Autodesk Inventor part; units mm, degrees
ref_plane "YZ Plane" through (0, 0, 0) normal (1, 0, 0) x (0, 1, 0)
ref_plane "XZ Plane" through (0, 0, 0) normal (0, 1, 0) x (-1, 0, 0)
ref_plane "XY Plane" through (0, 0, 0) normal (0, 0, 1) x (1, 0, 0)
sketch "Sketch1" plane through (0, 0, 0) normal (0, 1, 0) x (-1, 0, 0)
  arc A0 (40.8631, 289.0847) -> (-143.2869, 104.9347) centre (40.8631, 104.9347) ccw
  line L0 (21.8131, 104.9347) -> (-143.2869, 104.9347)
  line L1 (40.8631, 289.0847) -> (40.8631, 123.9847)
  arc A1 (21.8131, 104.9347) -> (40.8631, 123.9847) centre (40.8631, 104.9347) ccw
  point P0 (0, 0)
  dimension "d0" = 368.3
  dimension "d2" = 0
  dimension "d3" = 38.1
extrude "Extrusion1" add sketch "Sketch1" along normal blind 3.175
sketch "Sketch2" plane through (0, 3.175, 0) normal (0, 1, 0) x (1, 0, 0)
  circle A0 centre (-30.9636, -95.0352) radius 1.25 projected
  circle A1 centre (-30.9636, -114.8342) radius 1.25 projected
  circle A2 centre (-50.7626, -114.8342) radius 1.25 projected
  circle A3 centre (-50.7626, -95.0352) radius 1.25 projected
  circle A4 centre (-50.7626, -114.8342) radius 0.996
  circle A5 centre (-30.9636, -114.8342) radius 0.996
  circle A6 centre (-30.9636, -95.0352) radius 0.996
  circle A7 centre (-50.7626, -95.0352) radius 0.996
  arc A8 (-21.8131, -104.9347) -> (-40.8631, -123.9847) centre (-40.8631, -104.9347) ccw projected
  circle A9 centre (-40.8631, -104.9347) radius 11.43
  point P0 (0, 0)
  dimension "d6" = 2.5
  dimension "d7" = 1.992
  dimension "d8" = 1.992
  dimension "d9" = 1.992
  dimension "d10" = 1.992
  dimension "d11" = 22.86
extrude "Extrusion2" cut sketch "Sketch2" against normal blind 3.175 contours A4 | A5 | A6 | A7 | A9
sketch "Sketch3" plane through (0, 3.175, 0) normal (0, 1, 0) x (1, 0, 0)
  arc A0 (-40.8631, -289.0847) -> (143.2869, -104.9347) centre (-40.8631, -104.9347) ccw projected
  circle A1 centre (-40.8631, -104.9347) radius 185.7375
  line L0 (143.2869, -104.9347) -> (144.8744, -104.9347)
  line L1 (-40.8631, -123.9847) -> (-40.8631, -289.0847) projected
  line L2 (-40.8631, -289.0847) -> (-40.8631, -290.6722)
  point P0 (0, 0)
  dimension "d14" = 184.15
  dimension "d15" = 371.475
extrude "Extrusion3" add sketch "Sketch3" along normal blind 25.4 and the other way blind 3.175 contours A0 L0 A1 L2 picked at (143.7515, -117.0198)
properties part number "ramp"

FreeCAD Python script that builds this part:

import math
import FreeCAD as App
import Part
import Sketcher
Q = App.Units.Quantity

doc = App.newDocument("Part")
body = doc.addObject("PartDesign::Body", "Body")

sketch1 = body.newObject("Sketcher::SketchObject", "Sketch")
sketch1.AttachmentSupport = (doc.getObject("XZ_Plane"), [""])
sketch1.MapMode = "FlatFace"
sketch1.addGeometry([
    Part.LineSegment(App.Vector(-40.8631, 123.9847, 0), App.Vector(-40.8631, 289.0847, 0)),
    Part.ArcOfCircle(Part.Circle(App.Vector(-40.8631, 104.9347, 0), App.Vector(0, 0, 1), 184.15), math.radians(0), math.radians(90)),
    Part.LineSegment(App.Vector(143.2869, 104.9347, 0), App.Vector(-21.8131, 104.9347, 0)),
    Part.ArcOfCircle(Part.Circle(App.Vector(-40.8631, 104.9347, 0), App.Vector(0, 0, 1), 19.05), math.radians(90), math.radians(360)),
], False)
sketch1.addConstraint([
    Sketcher.Constraint("Coincident", 0, 2, 1, 2),
    Sketcher.Constraint("Coincident", 1, 1, 2, 1),
    Sketcher.Constraint("Coincident", 2, 2, 3, 2),
    Sketcher.Constraint("Coincident", 3, 1, 0, 1),
    Sketcher.Constraint("Vertical", 0),
    Sketcher.Constraint("Horizontal", 2),
    Sketcher.Constraint("Coincident", 3, 3, 1, 3),
    Sketcher.Constraint("Horizontal", 3, 3, 1, 1),
    Sketcher.Constraint("Vertical", 3, 3, 0, 2),
    Sketcher.Constraint("Radius", 1, Q("7.25 in")),
    Sketcher.Constraint("Radius", 3, Q("0.75 in")),
    Sketcher.Constraint("DistanceX", 1, 3, -1, 1, Q("40.863 mm")),
    Sketcher.Constraint("DistanceY", -1, 1, 1, 3, Q("104.9347 mm")),
])
pad1 = body.newObject("PartDesign::Pad", "Pad")
pad1.Profile = sketch1
pad1.Length = Q("0.125 in")
pad1.Reversed = True

sketch2 = body.newObject("Sketcher::SketchObject", "Sketch001")
sketch2.AttachmentSupport = (doc.getObject("XZ_Plane"), [""])
sketch2.MapMode = "FlatFace"
sketch2.AttachmentOffset = App.Placement(App.Vector(0, 0, -0.125 * 25.4), App.Rotation())
sketch2.addGeometry([
    Part.Circle(App.Vector(-50.7626, 114.8342, 0), App.Vector(0, 0, 1), 0.996),
    Part.Circle(App.Vector(-30.9636, 114.8342, 0), App.Vector(0, 0, 1), 0.996),
    Part.Circle(App.Vector(-30.9636, 95.0352, 0), App.Vector(0, 0, 1), 0.996),
    Part.Circle(App.Vector(-50.7626, 95.0352, 0), App.Vector(0, 0, 1), 0.996),
    Part.Circle(App.Vector(-40.8631, 104.9347, 0), App.Vector(0, 0, 1), 11.43),
], False)
sketch2.addConstraint([
    Sketcher.Constraint("Equal", 0, 1),
    Sketcher.Constraint("Equal", 1, 2),
    Sketcher.Constraint("Equal", 2, 3),
    Sketcher.Constraint("Horizontal", 0, 3, 1, 3),
    Sketcher.Constraint("Horizontal", 2, 3, 3, 3),
    Sketcher.Constraint("Vertical", 1, 3, 2, 3),
    Sketcher.Constraint("Vertical", 0, 3, 3, 3),
    Sketcher.Constraint("Diameter", 4, Q("0.9 in")),
    Sketcher.Constraint("Diameter", 0, Q("1.992 mm")),
    Sketcher.Constraint("DistanceX", 0, 3, 1, 3, Q("0.7795 in")),
    Sketcher.Constraint("DistanceY", 2, 3, 1, 3, Q("0.7795 in")),
    Sketcher.Constraint("DistanceX", 0, 3, -1, 1, Q("50.7626 mm")),
    Sketcher.Constraint("DistanceY", -1, 1, 0, 3, Q("114.8342 mm")),
    Sketcher.Constraint("DistanceX", 4, 3, -1, 1, Q("40.863 mm")),
    Sketcher.Constraint("DistanceY", -1, 1, 4, 3, Q("104.9347 mm")),
])
pocket1 = body.newObject("PartDesign::Pocket", "Pocket")
pocket1.Profile = sketch2
pocket1.Length = Q("0.125 in")
pocket1.Reversed = True

sketch3 = body.newObject("Sketcher::SketchObject", "Sketch002")
sketch3.AttachmentSupport = (doc.getObject("XZ_Plane"), [""])
sketch3.MapMode = "FlatFace"
sketch3.AttachmentOffset = App.Placement(App.Vector(0, 0, -0.125 * 25.4), App.Rotation())
sketch3.addGeometry([
    Part.ArcOfCircle(Part.Circle(App.Vector(-40.8631, 104.9347, 0), App.Vector(0, 0, 1), 184.15), math.radians(0), math.radians(90)),
    Part.LineSegment(App.Vector(-40.8631, 289.0847, 0), App.Vector(-40.8631, 290.6722, 0)),
    Part.ArcOfCircle(Part.Circle(App.Vector(-40.8631, 104.9347, 0), App.Vector(0, 0, 1), 185.7375), math.radians(0), math.radians(90)),
    Part.LineSegment(App.Vector(144.8744, 104.9347, 0), App.Vector(143.2869, 104.9347, 0)),
], False)
sketch3.addConstraint([
    Sketcher.Constraint("Coincident", 0, 2, 1, 1),
    Sketcher.Constraint("Coincident", 1, 2, 2, 2),
    Sketcher.Constraint("Coincident", 2, 1, 3, 1),
    Sketcher.Constraint("Coincident", 3, 2, 0, 1),
    Sketcher.Constraint("Vertical", 1),
    Sketcher.Constraint("Horizontal", 3),
    Sketcher.Constraint("Coincident", 2, 3, 0, 3),
    Sketcher.Constraint("Horizontal", 0, 3, 2, 1),
    Sketcher.Constraint("Vertical", 2, 3, 0, 2),
    Sketcher.Constraint("Radius", 0, Q("7.25 in")),
    Sketcher.Constraint("Radius", 2, Q("7.3125 in")),
    Sketcher.Constraint("DistanceX", 0, 3, -1, 1, Q("40.863 mm")),
    Sketcher.Constraint("DistanceY", -1, 1, 0, 3, Q("104.9347 mm")),
])
pad2 = body.newObject("PartDesign::Pad", "Pad001")
pad2.Profile = sketch3
pad2.Type = "TwoLengths"
pad2.Length = Q("1 in")
pad2.Length2 = Q("0.125 in")
pad2.Reversed = True

doc.recompute()
